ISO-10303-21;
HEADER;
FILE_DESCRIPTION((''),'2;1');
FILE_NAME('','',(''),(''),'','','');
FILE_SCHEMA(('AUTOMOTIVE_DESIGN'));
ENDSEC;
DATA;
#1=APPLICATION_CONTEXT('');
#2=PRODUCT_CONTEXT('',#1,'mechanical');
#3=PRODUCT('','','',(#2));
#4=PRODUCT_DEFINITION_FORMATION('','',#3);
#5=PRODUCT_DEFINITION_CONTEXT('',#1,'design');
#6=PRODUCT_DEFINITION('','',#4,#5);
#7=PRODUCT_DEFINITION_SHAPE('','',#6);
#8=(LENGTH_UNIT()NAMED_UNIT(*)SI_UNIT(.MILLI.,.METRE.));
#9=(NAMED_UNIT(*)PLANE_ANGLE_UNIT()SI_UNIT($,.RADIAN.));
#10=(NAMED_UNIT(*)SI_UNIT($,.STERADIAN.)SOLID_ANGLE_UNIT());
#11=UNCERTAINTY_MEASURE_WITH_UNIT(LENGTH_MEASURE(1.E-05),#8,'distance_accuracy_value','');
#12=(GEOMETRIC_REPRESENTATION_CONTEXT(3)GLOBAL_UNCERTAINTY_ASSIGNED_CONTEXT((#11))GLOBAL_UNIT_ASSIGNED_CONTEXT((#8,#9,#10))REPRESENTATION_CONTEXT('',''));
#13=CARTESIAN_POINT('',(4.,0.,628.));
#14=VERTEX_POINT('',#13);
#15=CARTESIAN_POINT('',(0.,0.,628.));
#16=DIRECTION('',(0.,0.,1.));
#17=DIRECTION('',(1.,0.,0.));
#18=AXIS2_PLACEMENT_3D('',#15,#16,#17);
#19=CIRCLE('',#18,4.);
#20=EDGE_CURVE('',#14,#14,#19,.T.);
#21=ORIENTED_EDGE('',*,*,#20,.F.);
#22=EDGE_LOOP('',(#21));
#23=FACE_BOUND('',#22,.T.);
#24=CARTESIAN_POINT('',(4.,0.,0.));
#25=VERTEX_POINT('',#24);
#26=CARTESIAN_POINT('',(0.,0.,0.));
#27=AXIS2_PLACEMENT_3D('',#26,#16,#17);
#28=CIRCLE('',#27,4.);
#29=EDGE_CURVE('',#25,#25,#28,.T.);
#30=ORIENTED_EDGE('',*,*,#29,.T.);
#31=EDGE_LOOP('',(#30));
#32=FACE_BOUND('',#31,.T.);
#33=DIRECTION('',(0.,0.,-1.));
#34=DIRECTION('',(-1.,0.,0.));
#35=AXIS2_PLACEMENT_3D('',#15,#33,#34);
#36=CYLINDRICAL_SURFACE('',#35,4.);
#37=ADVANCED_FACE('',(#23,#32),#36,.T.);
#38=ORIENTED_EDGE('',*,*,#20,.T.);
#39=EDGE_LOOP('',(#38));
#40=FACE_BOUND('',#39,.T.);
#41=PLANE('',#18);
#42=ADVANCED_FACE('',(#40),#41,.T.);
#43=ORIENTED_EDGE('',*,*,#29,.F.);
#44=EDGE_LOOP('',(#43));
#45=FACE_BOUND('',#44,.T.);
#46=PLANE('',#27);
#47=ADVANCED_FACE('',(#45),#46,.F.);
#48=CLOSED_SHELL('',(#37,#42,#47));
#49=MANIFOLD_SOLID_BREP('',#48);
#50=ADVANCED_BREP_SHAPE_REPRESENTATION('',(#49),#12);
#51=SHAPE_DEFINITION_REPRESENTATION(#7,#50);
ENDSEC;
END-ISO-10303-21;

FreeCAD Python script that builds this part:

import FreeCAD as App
import Part
import Sketcher

doc = App.newDocument("Part")
params = doc.addObject("Spreadsheet::Sheet", "Params")
for row, (alias, value) in enumerate([
    ("sketch1_diameter", "8 mm"),
    ("pad1_length", "628 mm"),
], start=1):
    params.set(f"A{row}", alias)
    params.set(f"B{row}", "=" + value)
    params.setAlias(f"B{row}", alias)

body = doc.addObject("PartDesign::Body", "Body")

# Sketch on XY plane
sketch1 = doc.addObject("Sketcher::SketchObject", "Sketch")
body.addObject(sketch1)
sketch1.AttachmentSupport = (doc.XY_Plane, [""])
sketch1.MapMode = "FlatFace"
sketch1.addGeometry(Part.Circle(App.Vector(0, 0, 0), App.Vector(0, 0, 1), 4), False)
sketch1.addConstraint(Sketcher.Constraint("Coincident", 0, 3, -1, 1))
sketch1.addConstraint(Sketcher.Constraint("Diameter", 0, 8.0))
sketch1.setExpression("Constraints[1]", "Params.sketch1_diameter")
pad1 = doc.addObject("PartDesign::Pad", "Pad")
body.addObject(pad1)
pad1.Profile = sketch1
pad1.setExpression("Length", "Params.pad1_length")

doc.recompute()
